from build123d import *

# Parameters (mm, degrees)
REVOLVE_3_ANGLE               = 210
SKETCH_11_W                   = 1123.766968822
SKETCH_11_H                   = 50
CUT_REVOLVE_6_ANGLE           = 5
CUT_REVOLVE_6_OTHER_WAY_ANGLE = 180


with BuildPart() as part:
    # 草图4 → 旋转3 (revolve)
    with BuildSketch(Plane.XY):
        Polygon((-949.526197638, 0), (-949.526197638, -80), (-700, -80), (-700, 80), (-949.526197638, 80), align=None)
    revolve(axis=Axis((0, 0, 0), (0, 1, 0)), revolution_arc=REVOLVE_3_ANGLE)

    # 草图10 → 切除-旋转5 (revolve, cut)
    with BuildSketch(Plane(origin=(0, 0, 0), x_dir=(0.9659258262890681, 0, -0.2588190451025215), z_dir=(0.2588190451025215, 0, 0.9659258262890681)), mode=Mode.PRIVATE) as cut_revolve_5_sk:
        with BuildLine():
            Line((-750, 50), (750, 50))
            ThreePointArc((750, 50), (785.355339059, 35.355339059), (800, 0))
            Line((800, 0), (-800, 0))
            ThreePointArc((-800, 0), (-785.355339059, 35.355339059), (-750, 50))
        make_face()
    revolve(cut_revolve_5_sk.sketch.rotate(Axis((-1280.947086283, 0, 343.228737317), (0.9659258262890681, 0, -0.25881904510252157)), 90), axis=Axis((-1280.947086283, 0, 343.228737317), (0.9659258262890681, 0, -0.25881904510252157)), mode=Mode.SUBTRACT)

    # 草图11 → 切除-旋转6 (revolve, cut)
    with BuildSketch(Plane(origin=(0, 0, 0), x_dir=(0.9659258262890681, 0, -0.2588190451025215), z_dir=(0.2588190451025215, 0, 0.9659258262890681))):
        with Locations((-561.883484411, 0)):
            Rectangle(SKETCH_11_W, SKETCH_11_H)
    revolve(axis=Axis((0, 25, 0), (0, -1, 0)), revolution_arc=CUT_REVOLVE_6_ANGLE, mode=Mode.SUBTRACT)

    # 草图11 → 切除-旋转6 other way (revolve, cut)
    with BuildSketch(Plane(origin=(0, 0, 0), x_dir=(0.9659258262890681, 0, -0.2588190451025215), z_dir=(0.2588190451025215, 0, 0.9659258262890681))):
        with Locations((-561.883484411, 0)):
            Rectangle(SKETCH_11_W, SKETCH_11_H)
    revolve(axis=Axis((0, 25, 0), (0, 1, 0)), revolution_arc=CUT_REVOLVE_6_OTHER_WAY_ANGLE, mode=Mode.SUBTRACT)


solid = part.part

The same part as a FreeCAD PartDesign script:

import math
import FreeCAD as App
import Part
import Sketcher
from FreeCAD import Vector


def add_polygon(sketch, points):
    """Adds a closed chain of lines whose ends are joined by coincident constraints."""
    first, n = sketch.GeometryCount, len(points)
    for a, b in zip(points, points[1:] + points[:1]):
        sketch.addGeometry(Part.LineSegment(App.Vector(*a, 0), App.Vector(*b, 0)), False)
    for i in range(n):
        sketch.addConstraint(Sketcher.Constraint("Coincident", first + i, 2, first + (i + 1) % n, 1))

doc = App.newDocument("Part")
body = doc.addObject("PartDesign::Body", "Body")

sketch1 = doc.addObject("Sketcher::SketchObject", "Sketch")
body.addObject(sketch1)
sketch1.AttachmentSupport = (doc.XY_Plane, [""])
sketch1.MapMode = "FlatFace"
add_polygon(sketch1, [(-949.526198, -80), (-700, -80), (-700, 80), (-949.526198, 80)])
sketch1.addConstraint([
    Sketcher.Constraint("Horizontal", 0),
    Sketcher.Constraint("Vertical", 1),
    Sketcher.Constraint("Horizontal", 2),
    Sketcher.Constraint("Vertical", 3),
    Sketcher.Constraint("DistanceY", 1, 1, 1, 2, 160.0),
    Sketcher.Constraint("DistanceX", 0, 2, -1, 1, 700.0),
    Sketcher.Constraint("DistanceY", 0, 2, -1, 1, 80.0),
    Sketcher.Constraint("DistanceX", 0, 1, 0, 2, 249.526198),
])
revolution = doc.addObject("PartDesign::Revolution", "Revolution")
body.addObject(revolution)
revolution.Profile = sketch1
revolution.ReferenceAxis = (sketch1, ["V_Axis"])
revolution.Angle = 210

sketch2 = doc.addObject("Sketcher::SketchObject", "Sketch001")
body.addObject(sketch2)
sketch2.Placement = App.Placement(Vector(0, 0, 0), App.Rotation(Vector(0.965925826, 0, -0.258819045), Vector(0, 0.999999999, 0), Vector(0.258819045, 0, 0.965925826), "ZXY"))
sketch2.addGeometry([
    Part.LineSegment(Vector(750, 50, 0), Vector(-750, 50, 0)),
    Part.ArcOfCircle(Part.Circle(Vector(-750, 0, 0), Vector(0, 0, 1), 50), math.radians(90), math.radians(180)),
    Part.LineSegment(Vector(-800, 0, 0), Vector(800, 0, 0)),
    Part.ArcOfCircle(Part.Circle(Vector(750, 0, 0), Vector(0, 0, 1), 50), math.radians(0), math.radians(90)),
], False)
sketch2.addConstraint([
    Sketcher.Constraint("Tangent", 0, 2, 1, 1),
    Sketcher.Constraint("Coincident", 1, 2, 2, 1),
    Sketcher.Constraint("Coincident", 2, 2, 3, 1),
    Sketcher.Constraint("Tangent", 3, 2, 0, 1),
    Sketcher.Constraint("Horizontal", 0),
    Sketcher.Constraint("Horizontal", 2),
    Sketcher.Constraint("Equal", 1, 3),
    Sketcher.Constraint("Symmetric", 1, 3, 3, 3, -1, 1),
    Sketcher.Constraint("PointOnObject", 1, 2, -1),
    Sketcher.Constraint("Radius", 1, 50.0),
    Sketcher.Constraint("DistanceX", 0, 2, 0, 1, 1499.999999),
])
groove = doc.addObject("PartDesign::Groove", "Groove")
body.addObject(groove)
groove.Profile = sketch2
groove.ReferenceAxis = (sketch2, ["H_Axis"])
groove.Angle = 360

sketch3 = doc.addObject("Sketcher::SketchObject", "Sketch002")
body.addObject(sketch3)
sketch3.Placement = App.Placement(Vector(0, 0, 0), App.Rotation(Vector(0.965925826, 0, -0.258819045), Vector(0, 0.999999999, 0), Vector(0.258819045, 0, 0.965925826), "ZXY"))
add_polygon(sketch3, [(-1123.766968, 25), (-1123.766968, -25), (0, -25), (0, 25)])
sketch3.addConstraint([
    Sketcher.Constraint("Vertical", 0),
    Sketcher.Constraint("Horizontal", 1),
    Sketcher.Constraint("Vertical", 2),
    Sketcher.Constraint("Horizontal", 3),
    Sketcher.Constraint("Symmetric", 1, 2, 2, 2, -1, 1),
    Sketcher.Constraint("DistanceY", 0, 2, 0, 1, 50.0),
    Sketcher.Constraint("DistanceX", 1, 1, 1, 2, 1123.766968),
])
groove2 = doc.addObject("PartDesign::Groove", "Groove001")
body.addObject(groove2)
groove2.Profile = sketch3
groove2.ReferenceAxis = (sketch3, ["V_Axis"])
groove2.Angle = 5
groove2.Reversed = True

sketch4 = doc.addObject("Sketcher::SketchObject", "Sketch003")
body.addObject(sketch4)
sketch4.Placement = App.Placement(Vector(0, 0, 0), App.Rotation(Vector(0.965925826, 0, -0.258819045), Vector(0, 0.999999999, 0), Vector(0.258819045, 0, 0.965925826), "ZXY"))
add_polygon(sketch4, [(-1123.766968, 25), (-1123.766968, -25), (0, -25), (0, 25)])
sketch4.addConstraint([
    Sketcher.Constraint("Vertical", 0),
    Sketcher.Constraint("Horizontal", 1),
    Sketcher.Constraint("Vertical", 2),
    Sketcher.Constraint("Horizontal", 3),
    Sketcher.Constraint("Symmetric", 1, 2, 2, 2, -1, 1),
    Sketcher.Constraint("DistanceY", 0, 2, 0, 1, 50.0),
    Sketcher.Constraint("DistanceX", 1, 1, 1, 2, 1123.766968),
])
groove3 = doc.addObject("PartDesign::Groove", "Groove002")
body.addObject(groove3)
groove3.Profile = sketch4
groove3.ReferenceAxis = (sketch4, ["V_Axis"])
groove3.Angle = 180

doc.recompute()
